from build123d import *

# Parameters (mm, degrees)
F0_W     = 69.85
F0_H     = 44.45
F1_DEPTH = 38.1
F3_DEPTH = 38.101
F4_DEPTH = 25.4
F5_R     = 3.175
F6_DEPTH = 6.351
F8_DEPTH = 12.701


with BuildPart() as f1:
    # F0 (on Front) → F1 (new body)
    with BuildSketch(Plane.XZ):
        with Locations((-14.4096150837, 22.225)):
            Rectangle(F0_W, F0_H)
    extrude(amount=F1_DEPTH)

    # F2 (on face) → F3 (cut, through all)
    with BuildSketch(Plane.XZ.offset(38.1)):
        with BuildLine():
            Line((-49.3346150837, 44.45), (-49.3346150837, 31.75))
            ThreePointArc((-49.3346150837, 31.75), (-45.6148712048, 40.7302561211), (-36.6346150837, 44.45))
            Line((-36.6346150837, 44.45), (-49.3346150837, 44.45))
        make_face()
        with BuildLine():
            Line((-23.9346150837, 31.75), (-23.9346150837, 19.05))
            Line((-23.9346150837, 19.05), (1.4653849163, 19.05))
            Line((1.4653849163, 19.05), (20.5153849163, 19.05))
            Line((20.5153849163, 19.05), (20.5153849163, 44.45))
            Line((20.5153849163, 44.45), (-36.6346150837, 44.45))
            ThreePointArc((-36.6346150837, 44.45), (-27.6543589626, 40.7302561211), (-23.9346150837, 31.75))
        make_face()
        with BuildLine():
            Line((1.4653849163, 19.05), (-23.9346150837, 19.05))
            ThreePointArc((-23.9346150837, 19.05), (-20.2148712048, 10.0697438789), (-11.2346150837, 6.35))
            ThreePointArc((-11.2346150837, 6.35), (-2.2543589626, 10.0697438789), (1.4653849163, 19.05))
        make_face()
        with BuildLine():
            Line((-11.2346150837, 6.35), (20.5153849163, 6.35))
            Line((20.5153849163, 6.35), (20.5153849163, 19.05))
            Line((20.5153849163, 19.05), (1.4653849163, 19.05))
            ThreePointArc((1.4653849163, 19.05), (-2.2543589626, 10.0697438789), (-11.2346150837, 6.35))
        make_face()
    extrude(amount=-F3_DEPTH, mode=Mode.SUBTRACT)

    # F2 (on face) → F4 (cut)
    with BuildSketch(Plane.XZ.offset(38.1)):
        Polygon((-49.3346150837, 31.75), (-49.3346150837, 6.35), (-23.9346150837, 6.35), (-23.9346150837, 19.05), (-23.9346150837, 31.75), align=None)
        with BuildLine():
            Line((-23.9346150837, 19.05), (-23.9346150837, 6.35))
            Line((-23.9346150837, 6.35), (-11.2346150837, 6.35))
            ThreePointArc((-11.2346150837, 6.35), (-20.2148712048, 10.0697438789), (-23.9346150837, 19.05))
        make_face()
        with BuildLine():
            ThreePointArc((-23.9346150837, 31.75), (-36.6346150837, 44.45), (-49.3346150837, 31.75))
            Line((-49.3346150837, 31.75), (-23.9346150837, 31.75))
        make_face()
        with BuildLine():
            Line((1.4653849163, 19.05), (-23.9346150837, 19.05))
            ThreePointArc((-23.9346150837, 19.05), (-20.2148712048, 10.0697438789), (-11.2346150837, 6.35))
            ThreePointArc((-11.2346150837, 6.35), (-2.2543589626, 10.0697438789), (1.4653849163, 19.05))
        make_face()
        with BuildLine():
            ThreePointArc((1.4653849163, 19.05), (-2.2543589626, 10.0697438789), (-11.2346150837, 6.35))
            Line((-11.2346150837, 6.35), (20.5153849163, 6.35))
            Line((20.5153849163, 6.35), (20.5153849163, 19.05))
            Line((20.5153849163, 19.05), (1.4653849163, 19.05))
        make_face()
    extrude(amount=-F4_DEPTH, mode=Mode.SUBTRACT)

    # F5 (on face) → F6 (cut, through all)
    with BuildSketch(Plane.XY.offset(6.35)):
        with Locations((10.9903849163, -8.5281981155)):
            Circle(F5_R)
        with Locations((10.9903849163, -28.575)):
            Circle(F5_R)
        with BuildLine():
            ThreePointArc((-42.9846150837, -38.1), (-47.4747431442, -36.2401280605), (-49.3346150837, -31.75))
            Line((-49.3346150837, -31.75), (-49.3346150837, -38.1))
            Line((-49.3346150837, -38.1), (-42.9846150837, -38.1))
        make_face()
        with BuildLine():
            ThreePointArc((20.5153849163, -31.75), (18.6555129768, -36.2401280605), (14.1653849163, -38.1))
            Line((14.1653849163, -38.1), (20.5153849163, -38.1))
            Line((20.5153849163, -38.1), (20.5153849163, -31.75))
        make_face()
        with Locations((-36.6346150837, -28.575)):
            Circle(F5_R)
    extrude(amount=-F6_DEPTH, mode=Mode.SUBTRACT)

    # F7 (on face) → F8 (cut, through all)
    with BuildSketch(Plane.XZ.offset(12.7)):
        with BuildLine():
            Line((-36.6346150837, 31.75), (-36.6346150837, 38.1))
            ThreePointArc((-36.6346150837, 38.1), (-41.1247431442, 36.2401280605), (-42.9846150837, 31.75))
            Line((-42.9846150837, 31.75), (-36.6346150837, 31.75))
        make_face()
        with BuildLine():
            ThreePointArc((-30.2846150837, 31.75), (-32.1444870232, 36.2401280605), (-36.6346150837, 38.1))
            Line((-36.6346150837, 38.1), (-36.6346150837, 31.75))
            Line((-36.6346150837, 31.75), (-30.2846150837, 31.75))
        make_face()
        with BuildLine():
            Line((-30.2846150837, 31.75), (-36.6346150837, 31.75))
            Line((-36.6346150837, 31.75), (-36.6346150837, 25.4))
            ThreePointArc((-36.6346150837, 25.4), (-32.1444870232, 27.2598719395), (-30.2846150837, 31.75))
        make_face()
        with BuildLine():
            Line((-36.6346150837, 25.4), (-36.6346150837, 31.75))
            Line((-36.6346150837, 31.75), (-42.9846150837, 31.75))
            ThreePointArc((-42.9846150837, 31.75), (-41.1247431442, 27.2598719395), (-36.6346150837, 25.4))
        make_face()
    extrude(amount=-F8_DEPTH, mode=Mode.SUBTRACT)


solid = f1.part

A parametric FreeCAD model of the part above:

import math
import FreeCAD as App
import Part
import Sketcher

V = App.Vector
Q = App.Units.Quantity


def add_polygon(sketch, points):
    """Adds a closed chain of lines whose ends are joined by coincident constraints."""
    first, n = sketch.GeometryCount, len(points)
    for a, b in zip(points, points[1:] + points[:1]):
        sketch.addGeometry(Part.LineSegment(App.Vector(*a, 0), App.Vector(*b, 0)), False)
    for i in range(n):
        sketch.addConstraint(Sketcher.Constraint("Coincident", first + i, 2, first + (i + 1) % n, 1))

doc = App.newDocument("Part")
body = doc.addObject("PartDesign::Body", "Body")

sketch1 = body.newObject("Sketcher::SketchObject", "Sketch")
sketch1.AttachmentSupport = (doc.getObject("XZ_Plane"), [""])
sketch1.MapMode = "FlatFace"
add_polygon(sketch1, [(-49, 44), (-49, 0), (21, 0), (21, 44)])
sketch1.addConstraint(Sketcher.Constraint("Vertical", 0))
sketch1.addConstraint(Sketcher.Constraint("Horizontal", 1))
sketch1.addConstraint(Sketcher.Constraint("Vertical", 2))
sketch1.addConstraint(Sketcher.Constraint("Horizontal", 3))
sketch1.addConstraint(Sketcher.Constraint("PointOnObject", 0, 2, -1))
sketch1.addConstraint(Sketcher.Constraint("DistanceX", 1, 1, 1, 2, Q("2.75 in")))
sketch1.addConstraint(Sketcher.Constraint("DistanceY", 0, 2, 0, 1, Q("1.75 in")))
sketch1.addConstraint(Sketcher.Constraint("DistanceX", 0, 2, -1, 1, 49.334615))
pad1 = body.newObject("PartDesign::Pad", "Pad")
pad1.Profile = sketch1
pad1.Length = Q("1.5 in")

sketch2 = body.newObject("Sketcher::SketchObject", "Sketch001")
sketch2.AttachmentSupport = (doc.getObject("XZ_Plane"), [""])
sketch2.MapMode = "FlatFace"
sketch2.AttachmentOffset = App.Placement(V(0, 0, 1.5 * 25.4), App.Rotation())
sketch2.addGeometry(Part.LineSegment(V(-49, 44, 0), V(-49, 32, 0)), False)
sketch2.addGeometry(Part.ArcOfCircle(Part.Circle(V(-37, 32, 0), V(0, 0, 1), 13), math.radians(90), math.radians(180)), False)
sketch2.addGeometry(Part.LineSegment(V(-37, 44, 0), V(-49, 44, 0)), False)
sketch2.addGeometry(Part.LineSegment(V(-24, 32, 0), V(-24, 19, 0)), False)
sketch2.addGeometry(Part.ArcOfCircle(Part.Circle(V(-11, 19, 0), V(0, 0, 1), 13), math.radians(180), math.radians(270)), False)
sketch2.addGeometry(Part.LineSegment(V(-11, 6, 0), V(21, 6, 0)), False)
sketch2.addGeometry(Part.LineSegment(V(21, 6, 0), V(21, 44, 0)), False)
sketch2.addGeometry(Part.LineSegment(V(21, 44, 0), V(-37, 44, 0)), False)
sketch2.addGeometry(Part.ArcOfCircle(Part.Circle(V(-37, 32, 0), V(0, 0, 1), 13), math.radians(0), math.radians(90)), False)
sketch2.addConstraint(Sketcher.Constraint("Tangent", 0, 2, 1, 2))
sketch2.addConstraint(Sketcher.Constraint("Tangent", 1, 1, 2, 1))
sketch2.addConstraint(Sketcher.Constraint("Coincident", 2, 2, 0, 1))
sketch2.addConstraint(Sketcher.Constraint("Tangent", 3, 2, 4, 1))
sketch2.addConstraint(Sketcher.Constraint("Tangent", 4, 2, 5, 1))
sketch2.addConstraint(Sketcher.Constraint("Coincident", 5, 2, 6, 1))
sketch2.addConstraint(Sketcher.Constraint("Coincident", 6, 2, 7, 1))
sketch2.addConstraint(Sketcher.Constraint("Tangent", 7, 2, 8, 2))
sketch2.addConstraint(Sketcher.Constraint("Tangent", 8, 1, 3, 1))
sketch2.addConstraint(Sketcher.Constraint("Vertical", 0))
sketch2.addConstraint(Sketcher.Constraint("Horizontal", 2))
sketch2.addConstraint(Sketcher.Constraint("Vertical", 3))
sketch2.addConstraint(Sketcher.Constraint("Horizontal", 5))
sketch2.addConstraint(Sketcher.Constraint("Vertical", 6))
sketch2.addConstraint(Sketcher.Constraint("Horizontal", 7))
sketch2.addConstraint(Sketcher.Constraint("Coincident", 8, 3, 1, 3))
sketch2.addConstraint(Sketcher.Constraint("Equal", 1, 4))
sketch2.addConstraint(Sketcher.Constraint("Equal", 4, 8))
sketch2.addConstraint(Sketcher.Constraint("Equal", 0, 3))
sketch2.addConstraint(Sketcher.Constraint("Radius", 1, Q("0.5 in")))
sketch2.addConstraint(Sketcher.Constraint("DistanceX", 5, 1, 5, 2, Q("1.25 in")))
sketch2.addConstraint(Sketcher.Constraint("DistanceY", -1, 1, 1, 3, Q("1.25 in")))
sketch2.addConstraint(Sketcher.Constraint("DistanceX", 1, 3, -1, 1, 36.634615))
pocket1 = body.newObject("PartDesign::Pocket", "Pocket")
pocket1.Profile = sketch2
pocket1.Type = "ThroughAll"

sketch3 = body.newObject("Sketcher::SketchObject", "Sketch002")
sketch3.AttachmentSupport = (doc.getObject("XZ_Plane"), [""])
sketch3.MapMode = "FlatFace"
sketch3.AttachmentOffset = App.Placement(V(0, 0, 1.5 * 25.4), App.Rotation())
sketch3.addGeometry(Part.LineSegment(V(-49, 32, 0), V(-49, 6, 0)), False)
sketch3.addGeometry(Part.LineSegment(V(-49, 6, 0), V(21, 6, 0)), False)
sketch3.addGeometry(Part.LineSegment(V(21, 6, 0), V(21, 19, 0)), False)
sketch3.addGeometry(Part.LineSegment(V(21, 19, 0), V(-24, 19, 0)), False)
sketch3.addGeometry(Part.LineSegment(V(-24, 19, 0), V(-24, 32, 0)), False)
sketch3.addGeometry(Part.ArcOfCircle(Part.Circle(V(-37, 32, 0), V(0, 0, 1), 13), math.radians(0), math.radians(180)), False)
sketch3.addConstraint(Sketcher.Constraint("Coincident", 0, 2, 1, 1))
sketch3.addConstraint(Sketcher.Constraint("Coincident", 1, 2, 2, 1))
sketch3.addConstraint(Sketcher.Constraint("Coincident", 2, 2, 3, 1))
sketch3.addConstraint(Sketcher.Constraint("Coincident", 3, 2, 4, 1))
sketch3.addConstraint(Sketcher.Constraint("Tangent", 4, 2, 5, 1))
sketch3.addConstraint(Sketcher.Constraint("Tangent", 5, 2, 0, 1))
sketch3.addConstraint(Sketcher.Constraint("Vertical", 0))
sketch3.addConstraint(Sketcher.Constraint("Horizontal", 1))
sketch3.addConstraint(Sketcher.Constraint("Vertical", 2))
sketch3.addConstraint(Sketcher.Constraint("Horizontal", 3))
sketch3.addConstraint(Sketcher.Constraint("Vertical", 4))
sketch3.addConstraint(Sketcher.Constraint("Equal", 2, 4))
sketch3.addConstraint(Sketcher.Constraint("Radius", 5, Q("0.5 in")))
sketch3.addConstraint(Sketcher.Constraint("DistanceY", 0, 2, 0, 1, Q("1 in")))
sketch3.addConstraint(Sketcher.Constraint("DistanceX", 1, 1, 1, 2, Q("2.75 in")))
sketch3.addConstraint(Sketcher.Constraint("DistanceY", -1, 1, 5, 3, Q("1.25 in")))
sketch3.addConstraint(Sketcher.Constraint("DistanceX", 5, 3, -1, 1, 36.634615))
pocket2 = body.newObject("PartDesign::Pocket", "Pocket001")
pocket2.Profile = sketch3
pocket2.Length = Q("1 in")

sketch4 = body.newObject("Sketcher::SketchObject", "Sketch003")
sketch4.AttachmentSupport = (doc.getObject("XY_Plane"), [""])
sketch4.MapMode = "FlatFace"
sketch4.AttachmentOffset = App.Placement(V(0, 0, 0.25 * 25.4), App.Rotation())
sketch4.addGeometry(Part.Circle(V(11, -8.5, 0), V(0, 0, 1), 3.2), False)
sketch4.addGeometry(Part.Circle(V(11, -28.6, 0), V(0, 0, 1), 3.2), False)
sketch4.addGeometry(Part.ArcOfCircle(Part.Circle(V(-43, -31.8, 0), V(0, 0, 1), 6.3), math.radians(180), math.radians(270)), False)
sketch4.addGeometry(Part.LineSegment(V(-49.3, -31.8, 0), V(-49.3, -38.1, 0)), False)
sketch4.addGeometry(Part.LineSegment(V(-49.3, -38.1, 0), V(-43, -38.1, 0)), False)
sketch4.addGeometry(Part.ArcOfCircle(Part.Circle(V(14.2, -31.8, 0), V(0, 0, 1), 6.3), math.radians(-90), math.radians(0)), False)
sketch4.addGeometry(Part.LineSegment(V(14.2, -38.1, 0), V(20.5, -38.1, 0)), False)
sketch4.addGeometry(Part.LineSegment(V(20.5, -38.1, 0), V(20.5, -31.8, 0)), False)
sketch4.addGeometry(Part.Circle(V(-36.6, -28.6, 0), V(0, 0, 1), 3.2), False)
sketch4.addConstraint(Sketcher.Constraint("Tangent", 2, 1, 3, 1))
sketch4.addConstraint(Sketcher.Constraint("Coincident", 3, 2, 4, 1))
sketch4.addConstraint(Sketcher.Constraint("Tangent", 4, 2, 2, 2))
sketch4.addConstraint(Sketcher.Constraint("Tangent", 5, 1, 6, 1))
sketch4.addConstraint(Sketcher.Constraint("Coincident", 6, 2, 7, 1))
sketch4.addConstraint(Sketcher.Constraint("Tangent", 7, 2, 5, 2))
sketch4.addConstraint(Sketcher.Constraint("Vertical", 3))
sketch4.addConstraint(Sketcher.Constraint("Horizontal", 4))
sketch4.addConstraint(Sketcher.Constraint("Horizontal", 6))
sketch4.addConstraint(Sketcher.Constraint("Vertical", 7))
sketch4.addConstraint(Sketcher.Constraint("Equal", 0, 1))
sketch4.addConstraint(Sketcher.Constraint("Equal", 2, 5))
sketch4.addConstraint(Sketcher.Constraint("Equal", 1, 8))
sketch4.addConstraint(Sketcher.Constraint("Horizontal", 2, 3, 5, 3))
sketch4.addConstraint(Sketcher.Constraint("Horizontal", 1, 3, 8, 3))
sketch4.addConstraint(Sketcher.Constraint("Vertical", 0, 3, 1, 3))
sketch4.addConstraint(Sketcher.Constraint("Diameter", 0, Q("0.25 in")))
sketch4.addConstraint(Sketcher.Constraint("Radius", 2, Q("0.25 in")))
sketch4.addConstraint(Sketcher.Constraint("DistanceX", 8, 3, 5, 3, Q("2 in")))
sketch4.addConstraint(Sketcher.Constraint("DistanceY", 3, 2, -1, 1, Q("1.5 in")))
sketch4.addConstraint(Sketcher.Constraint("DistanceX", 2, 1, 8, 3, Q("0.5 in")))
sketch4.addConstraint(Sketcher.Constraint("DistanceY", 1, 3, -1, 1, Q("1.125 in")))
sketch4.addConstraint(Sketcher.Constraint("DistanceX", 2, 3, 1, 3, Q("2.125 in")))
sketch4.addConstraint(Sketcher.Constraint("DistanceY", 0, 3, -1, 1, 8.528198))
sketch4.addConstraint(Sketcher.Constraint("DistanceX", -1, 1, 0, 3, 10.990385))
pocket3 = body.newObject("PartDesign::Pocket", "Pocket002")
pocket3.Profile = sketch4
pocket3.Type = "ThroughAll"

sketch5 = body.newObject("Sketcher::SketchObject", "Sketch004")
sketch5.AttachmentSupport = (doc.getObject("XZ_Plane"), [""])
sketch5.MapMode = "FlatFace"
sketch5.AttachmentOffset = App.Placement(V(0, 0, 0.5 * 25.4), App.Rotation())
sketch5.addGeometry(Part.ArcOfCircle(Part.Circle(V(-37, 32, 0), V(0, 0, 1), 6), math.radians(90), math.radians(180)), False)
sketch5.addGeometry(Part.ArcOfCircle(Part.Circle(V(-37, 32, 0), V(0, 0, 1), 6), math.radians(180), math.radians(270)), False)
sketch5.addGeometry(Part.ArcOfCircle(Part.Circle(V(-37, 32, 0), V(0, 0, 1), 6), math.radians(-90), math.radians(0)), False)
sketch5.addGeometry(Part.ArcOfCircle(Part.Circle(V(-37, 32, 0), V(0, 0, 1), 6), math.radians(0), math.radians(90)), False)
sketch5.addConstraint(Sketcher.Constraint("Tangent", 0, 2, 1, 1))
sketch5.addConstraint(Sketcher.Constraint("Tangent", 1, 2, 2, 1))
sketch5.addConstraint(Sketcher.Constraint("Tangent", 2, 2, 3, 1))
sketch5.addConstraint(Sketcher.Constraint("Tangent", 3, 2, 0, 1))
sketch5.addConstraint(Sketcher.Constraint("Equal", 0, 1))
sketch5.addConstraint(Sketcher.Constraint("Horizontal", 3, 3, 0, 2))
sketch5.addConstraint(Sketcher.Constraint("Horizontal", 0, 2, 2, 2))
sketch5.addConstraint(Sketcher.Constraint("Vertical", 3, 3, 1, 2))
sketch5.addConstraint(Sketcher.Constraint("Vertical", 1, 2, 3, 2))
sketch5.addConstraint(Sketcher.Constraint("Radius", 0, Q("0.25 in")))
sketch5.addConstraint(Sketcher.Constraint("DistanceY", -1, 1, 1, 2, Q("1 in")))
sketch5.addConstraint(Sketcher.Constraint("DistanceX", 0, 3, -1, 1, 36.634615))
pocket4 = body.newObject("PartDesign::Pocket", "Pocket003")
pocket4.Profile = sketch5
pocket4.Type = "ThroughAll"

doc.recompute()
